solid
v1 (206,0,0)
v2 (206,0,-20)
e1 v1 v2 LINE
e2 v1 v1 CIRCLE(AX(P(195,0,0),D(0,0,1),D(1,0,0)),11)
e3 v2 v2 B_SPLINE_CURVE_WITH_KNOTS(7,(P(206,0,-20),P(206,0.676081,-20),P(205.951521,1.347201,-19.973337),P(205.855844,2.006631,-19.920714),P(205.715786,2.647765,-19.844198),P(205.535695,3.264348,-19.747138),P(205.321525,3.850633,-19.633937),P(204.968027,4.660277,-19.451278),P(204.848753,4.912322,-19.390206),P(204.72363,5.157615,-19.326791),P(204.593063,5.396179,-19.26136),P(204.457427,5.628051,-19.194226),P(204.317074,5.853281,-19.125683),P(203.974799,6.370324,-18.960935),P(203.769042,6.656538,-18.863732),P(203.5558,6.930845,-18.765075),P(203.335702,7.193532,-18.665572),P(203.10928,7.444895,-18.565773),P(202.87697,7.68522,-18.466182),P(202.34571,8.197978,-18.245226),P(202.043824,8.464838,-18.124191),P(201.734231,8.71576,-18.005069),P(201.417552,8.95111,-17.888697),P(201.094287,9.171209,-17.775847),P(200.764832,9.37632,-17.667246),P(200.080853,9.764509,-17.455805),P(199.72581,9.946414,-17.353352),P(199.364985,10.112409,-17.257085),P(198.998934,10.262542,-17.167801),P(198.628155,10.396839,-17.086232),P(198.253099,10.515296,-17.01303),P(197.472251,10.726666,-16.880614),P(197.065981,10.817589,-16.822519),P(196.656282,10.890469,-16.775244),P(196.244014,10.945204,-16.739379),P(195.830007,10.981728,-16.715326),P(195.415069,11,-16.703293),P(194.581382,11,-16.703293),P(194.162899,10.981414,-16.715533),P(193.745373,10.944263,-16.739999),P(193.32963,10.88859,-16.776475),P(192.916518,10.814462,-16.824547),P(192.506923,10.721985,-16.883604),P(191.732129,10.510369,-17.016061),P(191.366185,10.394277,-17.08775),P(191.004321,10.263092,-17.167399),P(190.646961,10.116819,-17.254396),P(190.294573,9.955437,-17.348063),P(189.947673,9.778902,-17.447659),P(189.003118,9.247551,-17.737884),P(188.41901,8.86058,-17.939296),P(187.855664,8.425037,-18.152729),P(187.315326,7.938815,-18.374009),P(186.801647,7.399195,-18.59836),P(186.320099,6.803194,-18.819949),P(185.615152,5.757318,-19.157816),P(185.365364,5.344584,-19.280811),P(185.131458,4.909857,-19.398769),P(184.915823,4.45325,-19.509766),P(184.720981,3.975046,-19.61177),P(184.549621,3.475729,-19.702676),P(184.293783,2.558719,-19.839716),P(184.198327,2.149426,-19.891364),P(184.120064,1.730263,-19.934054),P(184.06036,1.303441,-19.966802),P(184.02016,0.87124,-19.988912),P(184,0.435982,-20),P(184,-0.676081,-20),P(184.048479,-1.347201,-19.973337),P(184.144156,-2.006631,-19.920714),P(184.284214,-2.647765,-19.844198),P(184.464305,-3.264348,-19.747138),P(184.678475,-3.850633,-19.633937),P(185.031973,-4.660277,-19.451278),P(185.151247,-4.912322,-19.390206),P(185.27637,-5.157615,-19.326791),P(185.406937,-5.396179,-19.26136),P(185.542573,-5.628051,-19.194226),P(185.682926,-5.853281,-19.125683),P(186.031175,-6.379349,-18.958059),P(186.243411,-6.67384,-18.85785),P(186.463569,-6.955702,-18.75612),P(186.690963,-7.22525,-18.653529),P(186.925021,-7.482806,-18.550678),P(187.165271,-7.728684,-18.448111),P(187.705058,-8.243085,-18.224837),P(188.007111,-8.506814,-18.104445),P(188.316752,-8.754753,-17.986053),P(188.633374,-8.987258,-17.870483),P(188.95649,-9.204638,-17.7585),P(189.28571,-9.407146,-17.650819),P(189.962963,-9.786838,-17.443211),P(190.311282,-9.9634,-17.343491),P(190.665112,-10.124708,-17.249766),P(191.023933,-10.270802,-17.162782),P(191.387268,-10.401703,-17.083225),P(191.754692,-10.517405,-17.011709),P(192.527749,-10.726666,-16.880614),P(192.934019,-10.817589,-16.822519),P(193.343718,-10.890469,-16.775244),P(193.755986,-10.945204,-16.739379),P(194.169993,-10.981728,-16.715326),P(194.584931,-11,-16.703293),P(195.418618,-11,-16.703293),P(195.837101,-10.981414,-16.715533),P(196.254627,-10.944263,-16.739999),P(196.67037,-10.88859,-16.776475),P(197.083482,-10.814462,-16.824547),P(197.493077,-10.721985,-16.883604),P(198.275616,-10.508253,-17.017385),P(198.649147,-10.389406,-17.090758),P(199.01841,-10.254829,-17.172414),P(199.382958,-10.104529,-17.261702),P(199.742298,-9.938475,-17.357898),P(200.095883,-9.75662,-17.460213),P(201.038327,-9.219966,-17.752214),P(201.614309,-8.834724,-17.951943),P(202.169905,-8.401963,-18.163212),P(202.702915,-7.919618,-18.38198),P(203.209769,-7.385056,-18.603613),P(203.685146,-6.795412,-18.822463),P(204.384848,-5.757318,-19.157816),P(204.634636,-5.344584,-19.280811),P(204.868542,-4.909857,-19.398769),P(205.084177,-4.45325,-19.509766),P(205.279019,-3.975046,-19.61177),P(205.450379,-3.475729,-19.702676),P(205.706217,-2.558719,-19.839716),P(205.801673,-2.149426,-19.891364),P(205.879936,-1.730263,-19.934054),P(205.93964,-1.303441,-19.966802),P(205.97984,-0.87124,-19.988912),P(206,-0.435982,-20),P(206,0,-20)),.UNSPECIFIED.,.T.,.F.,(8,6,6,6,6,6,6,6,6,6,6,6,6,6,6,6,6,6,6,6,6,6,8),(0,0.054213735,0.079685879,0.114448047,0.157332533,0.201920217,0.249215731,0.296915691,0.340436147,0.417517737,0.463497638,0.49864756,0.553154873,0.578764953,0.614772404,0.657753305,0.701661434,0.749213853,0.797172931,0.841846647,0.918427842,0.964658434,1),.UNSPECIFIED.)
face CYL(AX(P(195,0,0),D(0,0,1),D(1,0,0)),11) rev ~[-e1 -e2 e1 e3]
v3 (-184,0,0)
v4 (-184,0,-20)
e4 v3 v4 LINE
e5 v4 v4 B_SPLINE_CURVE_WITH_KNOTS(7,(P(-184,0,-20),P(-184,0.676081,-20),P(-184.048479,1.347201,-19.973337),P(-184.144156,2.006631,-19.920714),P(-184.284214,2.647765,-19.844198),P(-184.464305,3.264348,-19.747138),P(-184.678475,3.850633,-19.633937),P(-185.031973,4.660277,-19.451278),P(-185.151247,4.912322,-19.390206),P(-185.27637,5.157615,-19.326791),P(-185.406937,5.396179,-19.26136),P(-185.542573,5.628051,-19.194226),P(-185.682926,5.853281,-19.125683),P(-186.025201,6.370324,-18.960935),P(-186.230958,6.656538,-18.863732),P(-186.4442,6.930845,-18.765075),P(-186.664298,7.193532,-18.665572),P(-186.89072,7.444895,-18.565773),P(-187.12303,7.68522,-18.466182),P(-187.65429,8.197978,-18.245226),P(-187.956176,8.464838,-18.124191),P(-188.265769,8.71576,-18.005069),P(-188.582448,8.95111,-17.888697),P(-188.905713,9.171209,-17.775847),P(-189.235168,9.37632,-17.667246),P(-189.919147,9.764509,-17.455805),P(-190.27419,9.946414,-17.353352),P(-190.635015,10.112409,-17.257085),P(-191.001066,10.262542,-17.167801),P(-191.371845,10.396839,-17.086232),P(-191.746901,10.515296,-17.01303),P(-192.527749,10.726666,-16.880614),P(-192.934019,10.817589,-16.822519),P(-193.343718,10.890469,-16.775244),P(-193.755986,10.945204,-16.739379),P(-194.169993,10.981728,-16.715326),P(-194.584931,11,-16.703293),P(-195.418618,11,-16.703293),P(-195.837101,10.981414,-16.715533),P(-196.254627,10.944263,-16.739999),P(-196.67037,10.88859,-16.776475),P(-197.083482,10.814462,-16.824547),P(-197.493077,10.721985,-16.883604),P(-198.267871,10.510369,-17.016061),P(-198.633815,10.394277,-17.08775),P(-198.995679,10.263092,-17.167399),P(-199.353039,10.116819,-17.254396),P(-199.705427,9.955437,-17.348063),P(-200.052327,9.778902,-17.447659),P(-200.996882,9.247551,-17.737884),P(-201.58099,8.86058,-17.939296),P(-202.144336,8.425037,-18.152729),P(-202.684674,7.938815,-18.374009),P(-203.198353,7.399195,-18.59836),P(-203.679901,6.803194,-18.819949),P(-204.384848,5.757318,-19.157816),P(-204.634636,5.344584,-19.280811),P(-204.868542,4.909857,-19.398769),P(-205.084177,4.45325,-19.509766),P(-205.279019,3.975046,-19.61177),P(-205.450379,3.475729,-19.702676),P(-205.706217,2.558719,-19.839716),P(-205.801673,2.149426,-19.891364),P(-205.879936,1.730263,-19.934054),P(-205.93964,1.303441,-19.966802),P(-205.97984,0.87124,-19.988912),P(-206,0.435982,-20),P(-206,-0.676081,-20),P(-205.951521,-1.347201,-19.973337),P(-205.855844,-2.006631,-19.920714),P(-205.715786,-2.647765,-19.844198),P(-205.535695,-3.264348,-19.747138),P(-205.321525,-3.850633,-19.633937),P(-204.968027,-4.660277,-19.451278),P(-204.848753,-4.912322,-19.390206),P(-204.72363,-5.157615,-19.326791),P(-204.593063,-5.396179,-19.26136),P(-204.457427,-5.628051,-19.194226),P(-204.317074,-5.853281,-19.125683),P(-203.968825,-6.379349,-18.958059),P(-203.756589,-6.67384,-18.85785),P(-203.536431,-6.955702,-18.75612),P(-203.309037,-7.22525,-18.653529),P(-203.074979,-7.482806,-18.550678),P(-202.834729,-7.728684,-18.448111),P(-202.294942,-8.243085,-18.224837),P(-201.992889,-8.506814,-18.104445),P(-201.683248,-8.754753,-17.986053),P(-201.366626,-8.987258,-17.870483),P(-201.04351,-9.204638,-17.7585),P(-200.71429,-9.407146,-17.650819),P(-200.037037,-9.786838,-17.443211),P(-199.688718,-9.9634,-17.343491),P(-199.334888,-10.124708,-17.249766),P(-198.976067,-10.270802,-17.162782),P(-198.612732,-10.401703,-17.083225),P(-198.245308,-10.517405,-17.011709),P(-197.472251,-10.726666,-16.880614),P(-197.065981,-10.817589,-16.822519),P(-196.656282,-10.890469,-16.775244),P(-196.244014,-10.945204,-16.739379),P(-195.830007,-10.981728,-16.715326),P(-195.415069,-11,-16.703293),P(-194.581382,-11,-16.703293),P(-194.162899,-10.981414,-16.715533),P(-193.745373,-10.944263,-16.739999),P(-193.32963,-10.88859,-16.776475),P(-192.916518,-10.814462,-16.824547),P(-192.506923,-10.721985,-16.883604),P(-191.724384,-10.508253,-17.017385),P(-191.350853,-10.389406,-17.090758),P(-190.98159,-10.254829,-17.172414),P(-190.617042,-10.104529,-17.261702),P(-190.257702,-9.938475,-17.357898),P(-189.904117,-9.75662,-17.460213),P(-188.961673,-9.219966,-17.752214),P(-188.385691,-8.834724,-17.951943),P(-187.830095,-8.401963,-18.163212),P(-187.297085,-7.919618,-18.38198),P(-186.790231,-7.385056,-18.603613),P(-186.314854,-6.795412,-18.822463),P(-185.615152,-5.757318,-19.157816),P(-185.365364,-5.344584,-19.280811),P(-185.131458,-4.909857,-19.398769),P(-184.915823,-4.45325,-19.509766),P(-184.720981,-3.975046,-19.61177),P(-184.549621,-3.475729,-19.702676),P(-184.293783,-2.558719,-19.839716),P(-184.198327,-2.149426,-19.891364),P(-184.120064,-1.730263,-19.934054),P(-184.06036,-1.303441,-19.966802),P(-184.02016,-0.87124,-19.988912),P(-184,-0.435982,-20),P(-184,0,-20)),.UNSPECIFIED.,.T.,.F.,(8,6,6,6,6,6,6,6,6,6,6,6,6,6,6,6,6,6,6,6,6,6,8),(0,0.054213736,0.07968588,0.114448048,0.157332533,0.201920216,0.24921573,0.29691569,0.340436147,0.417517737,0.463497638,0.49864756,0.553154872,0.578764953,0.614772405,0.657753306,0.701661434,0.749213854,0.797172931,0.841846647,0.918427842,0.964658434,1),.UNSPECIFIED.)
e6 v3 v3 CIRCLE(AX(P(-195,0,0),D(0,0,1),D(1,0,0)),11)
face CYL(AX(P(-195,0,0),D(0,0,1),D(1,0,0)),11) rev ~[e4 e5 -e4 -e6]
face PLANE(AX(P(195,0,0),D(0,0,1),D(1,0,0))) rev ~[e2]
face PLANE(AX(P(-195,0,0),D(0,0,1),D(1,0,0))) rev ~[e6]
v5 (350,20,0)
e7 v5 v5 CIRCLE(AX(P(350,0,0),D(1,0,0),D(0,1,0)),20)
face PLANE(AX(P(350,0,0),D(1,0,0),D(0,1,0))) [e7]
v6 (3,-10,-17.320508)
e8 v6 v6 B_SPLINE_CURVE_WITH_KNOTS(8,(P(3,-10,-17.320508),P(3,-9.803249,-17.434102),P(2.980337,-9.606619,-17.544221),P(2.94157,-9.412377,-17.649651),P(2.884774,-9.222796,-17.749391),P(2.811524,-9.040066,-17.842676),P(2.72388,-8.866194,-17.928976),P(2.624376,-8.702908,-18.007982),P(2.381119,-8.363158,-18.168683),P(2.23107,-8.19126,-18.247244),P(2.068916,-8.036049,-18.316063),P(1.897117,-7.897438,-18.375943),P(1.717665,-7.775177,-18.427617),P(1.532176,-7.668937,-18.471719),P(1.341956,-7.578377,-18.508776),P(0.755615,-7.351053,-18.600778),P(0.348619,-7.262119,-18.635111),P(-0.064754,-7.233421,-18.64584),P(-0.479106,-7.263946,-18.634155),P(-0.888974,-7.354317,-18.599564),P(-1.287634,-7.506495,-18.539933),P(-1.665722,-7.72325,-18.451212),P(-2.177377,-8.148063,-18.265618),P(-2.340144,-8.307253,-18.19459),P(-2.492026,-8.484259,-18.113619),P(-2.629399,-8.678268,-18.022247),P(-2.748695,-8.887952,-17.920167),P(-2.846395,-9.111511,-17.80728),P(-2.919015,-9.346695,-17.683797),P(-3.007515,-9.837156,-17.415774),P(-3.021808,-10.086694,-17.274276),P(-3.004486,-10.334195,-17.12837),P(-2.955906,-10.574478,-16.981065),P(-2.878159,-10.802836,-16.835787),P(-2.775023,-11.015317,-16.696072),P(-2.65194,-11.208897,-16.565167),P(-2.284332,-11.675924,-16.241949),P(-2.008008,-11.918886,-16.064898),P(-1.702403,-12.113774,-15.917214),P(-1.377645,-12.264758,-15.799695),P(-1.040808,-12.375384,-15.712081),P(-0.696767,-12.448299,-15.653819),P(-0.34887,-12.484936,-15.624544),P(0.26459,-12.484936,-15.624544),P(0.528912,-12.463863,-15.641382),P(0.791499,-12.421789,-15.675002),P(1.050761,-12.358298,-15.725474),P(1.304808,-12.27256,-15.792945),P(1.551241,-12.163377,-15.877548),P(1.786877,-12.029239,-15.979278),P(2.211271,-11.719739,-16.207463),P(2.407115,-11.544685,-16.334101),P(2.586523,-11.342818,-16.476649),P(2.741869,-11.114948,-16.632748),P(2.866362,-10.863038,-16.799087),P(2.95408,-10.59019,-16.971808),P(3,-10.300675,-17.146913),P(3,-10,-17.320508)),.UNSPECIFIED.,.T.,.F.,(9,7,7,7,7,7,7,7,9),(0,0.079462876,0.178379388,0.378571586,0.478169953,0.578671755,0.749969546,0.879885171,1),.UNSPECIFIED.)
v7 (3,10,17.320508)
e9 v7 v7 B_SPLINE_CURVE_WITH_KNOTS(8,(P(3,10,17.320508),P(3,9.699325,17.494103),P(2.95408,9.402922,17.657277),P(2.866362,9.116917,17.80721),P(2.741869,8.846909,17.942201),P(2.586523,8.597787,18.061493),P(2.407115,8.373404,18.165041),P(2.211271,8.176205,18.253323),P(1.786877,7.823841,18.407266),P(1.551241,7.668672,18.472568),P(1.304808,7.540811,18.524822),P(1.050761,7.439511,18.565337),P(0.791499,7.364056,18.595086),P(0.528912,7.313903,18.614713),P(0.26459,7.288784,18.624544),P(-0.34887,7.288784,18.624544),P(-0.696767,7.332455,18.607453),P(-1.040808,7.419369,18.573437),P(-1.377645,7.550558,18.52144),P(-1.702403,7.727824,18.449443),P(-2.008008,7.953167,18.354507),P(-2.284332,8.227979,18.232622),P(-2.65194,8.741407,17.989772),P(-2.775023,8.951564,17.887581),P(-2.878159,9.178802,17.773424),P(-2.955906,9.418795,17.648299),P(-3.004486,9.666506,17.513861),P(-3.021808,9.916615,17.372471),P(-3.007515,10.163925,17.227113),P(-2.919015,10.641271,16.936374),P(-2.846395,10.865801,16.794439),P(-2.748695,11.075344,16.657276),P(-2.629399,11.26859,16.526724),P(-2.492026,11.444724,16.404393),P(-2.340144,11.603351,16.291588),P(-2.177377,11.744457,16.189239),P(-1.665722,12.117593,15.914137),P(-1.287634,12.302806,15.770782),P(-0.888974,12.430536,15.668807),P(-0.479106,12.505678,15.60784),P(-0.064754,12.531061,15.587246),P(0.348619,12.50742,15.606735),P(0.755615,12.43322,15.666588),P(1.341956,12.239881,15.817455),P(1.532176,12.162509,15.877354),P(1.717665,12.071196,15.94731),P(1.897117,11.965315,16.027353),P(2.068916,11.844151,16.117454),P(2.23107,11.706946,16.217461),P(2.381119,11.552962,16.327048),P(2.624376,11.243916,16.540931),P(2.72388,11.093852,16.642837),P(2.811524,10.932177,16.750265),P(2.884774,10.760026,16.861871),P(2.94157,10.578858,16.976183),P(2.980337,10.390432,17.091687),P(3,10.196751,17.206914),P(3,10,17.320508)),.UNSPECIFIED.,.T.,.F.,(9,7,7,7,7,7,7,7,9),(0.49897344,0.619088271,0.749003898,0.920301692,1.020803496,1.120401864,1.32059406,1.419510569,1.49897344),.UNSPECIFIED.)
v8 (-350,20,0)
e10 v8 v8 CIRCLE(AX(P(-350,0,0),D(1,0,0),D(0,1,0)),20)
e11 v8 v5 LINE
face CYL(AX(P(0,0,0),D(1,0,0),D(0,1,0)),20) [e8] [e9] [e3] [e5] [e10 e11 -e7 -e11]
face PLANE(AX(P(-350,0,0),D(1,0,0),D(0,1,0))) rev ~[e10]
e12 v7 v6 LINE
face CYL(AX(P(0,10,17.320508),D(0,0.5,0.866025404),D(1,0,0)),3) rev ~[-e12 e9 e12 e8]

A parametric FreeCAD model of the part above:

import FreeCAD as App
import Part
import Sketcher

doc = App.newDocument("Part")
params = doc.addObject("Spreadsheet::Sheet", "Params")
for row, (alias, value) in enumerate([
    ("sketch1_diameter", "40 mm"),
    ("pad1_length", "700 mm"),
    ("sketch2_diameter", "22 mm"),
    ("pocket1_length", "25.4 mm"),
    ("sketch3_diameter", "6 mm"),
], start=1):
    params.set(f"A{row}", alias)
    params.set(f"B{row}", "=" + value)
    params.setAlias(f"B{row}", alias)

body = doc.addObject("PartDesign::Body", "Body")

sketch1 = body.newObject("Sketcher::SketchObject", "Sketch")
sketch1.AttachmentSupport = (doc.getObject("YZ_Plane"), [""])
sketch1.MapMode = "FlatFace"
sketch1.addGeometry(Part.Circle(App.Vector(0, 0, 0), App.Vector(0, 0, 1), 20), False)
sketch1.addConstraint([
    Sketcher.Constraint("Coincident", 0, 3, -1, 1),
    Sketcher.Constraint("Diameter", 0, 40.0),
])
sketch1.setExpression("Constraints[1]", "Params.sketch1_diameter")
pad1 = body.newObject("PartDesign::Pad", "Pad")
pad1.Profile = sketch1
pad1.setExpression("Length", "Params.pad1_length")
pad1.Midplane = True

sketch2 = body.newObject("Sketcher::SketchObject", "Sketch001")
sketch2.AttachmentSupport = (doc.getObject("XY_Plane"), [""])
sketch2.MapMode = "FlatFace"
sketch2.addGeometry([
    Part.Circle(App.Vector(-195, 0, 0), App.Vector(0, 0, 1), 11),
    Part.Circle(App.Vector(195, 0, 0), App.Vector(0, 0, 1), 11),
], False)
sketch2.addConstraint([
    Sketcher.Constraint("Equal", 0, 1),
    Sketcher.Constraint("Symmetric", 0, 3, 1, 3, -1, 1),
    Sketcher.Constraint("PointOnObject", 0, 3, -1),
    Sketcher.Constraint("Diameter", 0, 22.0),
    Sketcher.Constraint("DistanceX", 0, 3, -1, 1, 195.0),
])
sketch2.setExpression("Constraints[3]", "Params.sketch2_diameter")
pocket1 = body.newObject("PartDesign::Pocket", "Pocket")
pocket1.Profile = sketch2
pocket1.setExpression("Length", "Params.pocket1_length")

sketch3 = body.newObject("Sketcher::SketchObject", "Sketch002")
sketch3.Placement = App.Placement(App.Vector(0, 10, 17.320508), App.Rotation(App.Vector(1, 0, 0), App.Vector(0, 0.866025404, -0.5), App.Vector(0, 0.5, 0.866025404), "ZXY"))
sketch3.addGeometry(Part.Circle(App.Vector(0, 0, 0), App.Vector(0, 0, 1), 3), False)
sketch3.addConstraint([
    Sketcher.Constraint("Coincident", 0, 3, -1, 1),
    Sketcher.Constraint("Diameter", 0, 6.0),
])
sketch3.setExpression("Constraints[1]", "Params.sketch3_diameter")
pocket2 = body.newObject("PartDesign::Pocket", "Pocket001")
pocket2.Profile = sketch3
pocket2.Type = "ThroughAll"

doc.recompute()
